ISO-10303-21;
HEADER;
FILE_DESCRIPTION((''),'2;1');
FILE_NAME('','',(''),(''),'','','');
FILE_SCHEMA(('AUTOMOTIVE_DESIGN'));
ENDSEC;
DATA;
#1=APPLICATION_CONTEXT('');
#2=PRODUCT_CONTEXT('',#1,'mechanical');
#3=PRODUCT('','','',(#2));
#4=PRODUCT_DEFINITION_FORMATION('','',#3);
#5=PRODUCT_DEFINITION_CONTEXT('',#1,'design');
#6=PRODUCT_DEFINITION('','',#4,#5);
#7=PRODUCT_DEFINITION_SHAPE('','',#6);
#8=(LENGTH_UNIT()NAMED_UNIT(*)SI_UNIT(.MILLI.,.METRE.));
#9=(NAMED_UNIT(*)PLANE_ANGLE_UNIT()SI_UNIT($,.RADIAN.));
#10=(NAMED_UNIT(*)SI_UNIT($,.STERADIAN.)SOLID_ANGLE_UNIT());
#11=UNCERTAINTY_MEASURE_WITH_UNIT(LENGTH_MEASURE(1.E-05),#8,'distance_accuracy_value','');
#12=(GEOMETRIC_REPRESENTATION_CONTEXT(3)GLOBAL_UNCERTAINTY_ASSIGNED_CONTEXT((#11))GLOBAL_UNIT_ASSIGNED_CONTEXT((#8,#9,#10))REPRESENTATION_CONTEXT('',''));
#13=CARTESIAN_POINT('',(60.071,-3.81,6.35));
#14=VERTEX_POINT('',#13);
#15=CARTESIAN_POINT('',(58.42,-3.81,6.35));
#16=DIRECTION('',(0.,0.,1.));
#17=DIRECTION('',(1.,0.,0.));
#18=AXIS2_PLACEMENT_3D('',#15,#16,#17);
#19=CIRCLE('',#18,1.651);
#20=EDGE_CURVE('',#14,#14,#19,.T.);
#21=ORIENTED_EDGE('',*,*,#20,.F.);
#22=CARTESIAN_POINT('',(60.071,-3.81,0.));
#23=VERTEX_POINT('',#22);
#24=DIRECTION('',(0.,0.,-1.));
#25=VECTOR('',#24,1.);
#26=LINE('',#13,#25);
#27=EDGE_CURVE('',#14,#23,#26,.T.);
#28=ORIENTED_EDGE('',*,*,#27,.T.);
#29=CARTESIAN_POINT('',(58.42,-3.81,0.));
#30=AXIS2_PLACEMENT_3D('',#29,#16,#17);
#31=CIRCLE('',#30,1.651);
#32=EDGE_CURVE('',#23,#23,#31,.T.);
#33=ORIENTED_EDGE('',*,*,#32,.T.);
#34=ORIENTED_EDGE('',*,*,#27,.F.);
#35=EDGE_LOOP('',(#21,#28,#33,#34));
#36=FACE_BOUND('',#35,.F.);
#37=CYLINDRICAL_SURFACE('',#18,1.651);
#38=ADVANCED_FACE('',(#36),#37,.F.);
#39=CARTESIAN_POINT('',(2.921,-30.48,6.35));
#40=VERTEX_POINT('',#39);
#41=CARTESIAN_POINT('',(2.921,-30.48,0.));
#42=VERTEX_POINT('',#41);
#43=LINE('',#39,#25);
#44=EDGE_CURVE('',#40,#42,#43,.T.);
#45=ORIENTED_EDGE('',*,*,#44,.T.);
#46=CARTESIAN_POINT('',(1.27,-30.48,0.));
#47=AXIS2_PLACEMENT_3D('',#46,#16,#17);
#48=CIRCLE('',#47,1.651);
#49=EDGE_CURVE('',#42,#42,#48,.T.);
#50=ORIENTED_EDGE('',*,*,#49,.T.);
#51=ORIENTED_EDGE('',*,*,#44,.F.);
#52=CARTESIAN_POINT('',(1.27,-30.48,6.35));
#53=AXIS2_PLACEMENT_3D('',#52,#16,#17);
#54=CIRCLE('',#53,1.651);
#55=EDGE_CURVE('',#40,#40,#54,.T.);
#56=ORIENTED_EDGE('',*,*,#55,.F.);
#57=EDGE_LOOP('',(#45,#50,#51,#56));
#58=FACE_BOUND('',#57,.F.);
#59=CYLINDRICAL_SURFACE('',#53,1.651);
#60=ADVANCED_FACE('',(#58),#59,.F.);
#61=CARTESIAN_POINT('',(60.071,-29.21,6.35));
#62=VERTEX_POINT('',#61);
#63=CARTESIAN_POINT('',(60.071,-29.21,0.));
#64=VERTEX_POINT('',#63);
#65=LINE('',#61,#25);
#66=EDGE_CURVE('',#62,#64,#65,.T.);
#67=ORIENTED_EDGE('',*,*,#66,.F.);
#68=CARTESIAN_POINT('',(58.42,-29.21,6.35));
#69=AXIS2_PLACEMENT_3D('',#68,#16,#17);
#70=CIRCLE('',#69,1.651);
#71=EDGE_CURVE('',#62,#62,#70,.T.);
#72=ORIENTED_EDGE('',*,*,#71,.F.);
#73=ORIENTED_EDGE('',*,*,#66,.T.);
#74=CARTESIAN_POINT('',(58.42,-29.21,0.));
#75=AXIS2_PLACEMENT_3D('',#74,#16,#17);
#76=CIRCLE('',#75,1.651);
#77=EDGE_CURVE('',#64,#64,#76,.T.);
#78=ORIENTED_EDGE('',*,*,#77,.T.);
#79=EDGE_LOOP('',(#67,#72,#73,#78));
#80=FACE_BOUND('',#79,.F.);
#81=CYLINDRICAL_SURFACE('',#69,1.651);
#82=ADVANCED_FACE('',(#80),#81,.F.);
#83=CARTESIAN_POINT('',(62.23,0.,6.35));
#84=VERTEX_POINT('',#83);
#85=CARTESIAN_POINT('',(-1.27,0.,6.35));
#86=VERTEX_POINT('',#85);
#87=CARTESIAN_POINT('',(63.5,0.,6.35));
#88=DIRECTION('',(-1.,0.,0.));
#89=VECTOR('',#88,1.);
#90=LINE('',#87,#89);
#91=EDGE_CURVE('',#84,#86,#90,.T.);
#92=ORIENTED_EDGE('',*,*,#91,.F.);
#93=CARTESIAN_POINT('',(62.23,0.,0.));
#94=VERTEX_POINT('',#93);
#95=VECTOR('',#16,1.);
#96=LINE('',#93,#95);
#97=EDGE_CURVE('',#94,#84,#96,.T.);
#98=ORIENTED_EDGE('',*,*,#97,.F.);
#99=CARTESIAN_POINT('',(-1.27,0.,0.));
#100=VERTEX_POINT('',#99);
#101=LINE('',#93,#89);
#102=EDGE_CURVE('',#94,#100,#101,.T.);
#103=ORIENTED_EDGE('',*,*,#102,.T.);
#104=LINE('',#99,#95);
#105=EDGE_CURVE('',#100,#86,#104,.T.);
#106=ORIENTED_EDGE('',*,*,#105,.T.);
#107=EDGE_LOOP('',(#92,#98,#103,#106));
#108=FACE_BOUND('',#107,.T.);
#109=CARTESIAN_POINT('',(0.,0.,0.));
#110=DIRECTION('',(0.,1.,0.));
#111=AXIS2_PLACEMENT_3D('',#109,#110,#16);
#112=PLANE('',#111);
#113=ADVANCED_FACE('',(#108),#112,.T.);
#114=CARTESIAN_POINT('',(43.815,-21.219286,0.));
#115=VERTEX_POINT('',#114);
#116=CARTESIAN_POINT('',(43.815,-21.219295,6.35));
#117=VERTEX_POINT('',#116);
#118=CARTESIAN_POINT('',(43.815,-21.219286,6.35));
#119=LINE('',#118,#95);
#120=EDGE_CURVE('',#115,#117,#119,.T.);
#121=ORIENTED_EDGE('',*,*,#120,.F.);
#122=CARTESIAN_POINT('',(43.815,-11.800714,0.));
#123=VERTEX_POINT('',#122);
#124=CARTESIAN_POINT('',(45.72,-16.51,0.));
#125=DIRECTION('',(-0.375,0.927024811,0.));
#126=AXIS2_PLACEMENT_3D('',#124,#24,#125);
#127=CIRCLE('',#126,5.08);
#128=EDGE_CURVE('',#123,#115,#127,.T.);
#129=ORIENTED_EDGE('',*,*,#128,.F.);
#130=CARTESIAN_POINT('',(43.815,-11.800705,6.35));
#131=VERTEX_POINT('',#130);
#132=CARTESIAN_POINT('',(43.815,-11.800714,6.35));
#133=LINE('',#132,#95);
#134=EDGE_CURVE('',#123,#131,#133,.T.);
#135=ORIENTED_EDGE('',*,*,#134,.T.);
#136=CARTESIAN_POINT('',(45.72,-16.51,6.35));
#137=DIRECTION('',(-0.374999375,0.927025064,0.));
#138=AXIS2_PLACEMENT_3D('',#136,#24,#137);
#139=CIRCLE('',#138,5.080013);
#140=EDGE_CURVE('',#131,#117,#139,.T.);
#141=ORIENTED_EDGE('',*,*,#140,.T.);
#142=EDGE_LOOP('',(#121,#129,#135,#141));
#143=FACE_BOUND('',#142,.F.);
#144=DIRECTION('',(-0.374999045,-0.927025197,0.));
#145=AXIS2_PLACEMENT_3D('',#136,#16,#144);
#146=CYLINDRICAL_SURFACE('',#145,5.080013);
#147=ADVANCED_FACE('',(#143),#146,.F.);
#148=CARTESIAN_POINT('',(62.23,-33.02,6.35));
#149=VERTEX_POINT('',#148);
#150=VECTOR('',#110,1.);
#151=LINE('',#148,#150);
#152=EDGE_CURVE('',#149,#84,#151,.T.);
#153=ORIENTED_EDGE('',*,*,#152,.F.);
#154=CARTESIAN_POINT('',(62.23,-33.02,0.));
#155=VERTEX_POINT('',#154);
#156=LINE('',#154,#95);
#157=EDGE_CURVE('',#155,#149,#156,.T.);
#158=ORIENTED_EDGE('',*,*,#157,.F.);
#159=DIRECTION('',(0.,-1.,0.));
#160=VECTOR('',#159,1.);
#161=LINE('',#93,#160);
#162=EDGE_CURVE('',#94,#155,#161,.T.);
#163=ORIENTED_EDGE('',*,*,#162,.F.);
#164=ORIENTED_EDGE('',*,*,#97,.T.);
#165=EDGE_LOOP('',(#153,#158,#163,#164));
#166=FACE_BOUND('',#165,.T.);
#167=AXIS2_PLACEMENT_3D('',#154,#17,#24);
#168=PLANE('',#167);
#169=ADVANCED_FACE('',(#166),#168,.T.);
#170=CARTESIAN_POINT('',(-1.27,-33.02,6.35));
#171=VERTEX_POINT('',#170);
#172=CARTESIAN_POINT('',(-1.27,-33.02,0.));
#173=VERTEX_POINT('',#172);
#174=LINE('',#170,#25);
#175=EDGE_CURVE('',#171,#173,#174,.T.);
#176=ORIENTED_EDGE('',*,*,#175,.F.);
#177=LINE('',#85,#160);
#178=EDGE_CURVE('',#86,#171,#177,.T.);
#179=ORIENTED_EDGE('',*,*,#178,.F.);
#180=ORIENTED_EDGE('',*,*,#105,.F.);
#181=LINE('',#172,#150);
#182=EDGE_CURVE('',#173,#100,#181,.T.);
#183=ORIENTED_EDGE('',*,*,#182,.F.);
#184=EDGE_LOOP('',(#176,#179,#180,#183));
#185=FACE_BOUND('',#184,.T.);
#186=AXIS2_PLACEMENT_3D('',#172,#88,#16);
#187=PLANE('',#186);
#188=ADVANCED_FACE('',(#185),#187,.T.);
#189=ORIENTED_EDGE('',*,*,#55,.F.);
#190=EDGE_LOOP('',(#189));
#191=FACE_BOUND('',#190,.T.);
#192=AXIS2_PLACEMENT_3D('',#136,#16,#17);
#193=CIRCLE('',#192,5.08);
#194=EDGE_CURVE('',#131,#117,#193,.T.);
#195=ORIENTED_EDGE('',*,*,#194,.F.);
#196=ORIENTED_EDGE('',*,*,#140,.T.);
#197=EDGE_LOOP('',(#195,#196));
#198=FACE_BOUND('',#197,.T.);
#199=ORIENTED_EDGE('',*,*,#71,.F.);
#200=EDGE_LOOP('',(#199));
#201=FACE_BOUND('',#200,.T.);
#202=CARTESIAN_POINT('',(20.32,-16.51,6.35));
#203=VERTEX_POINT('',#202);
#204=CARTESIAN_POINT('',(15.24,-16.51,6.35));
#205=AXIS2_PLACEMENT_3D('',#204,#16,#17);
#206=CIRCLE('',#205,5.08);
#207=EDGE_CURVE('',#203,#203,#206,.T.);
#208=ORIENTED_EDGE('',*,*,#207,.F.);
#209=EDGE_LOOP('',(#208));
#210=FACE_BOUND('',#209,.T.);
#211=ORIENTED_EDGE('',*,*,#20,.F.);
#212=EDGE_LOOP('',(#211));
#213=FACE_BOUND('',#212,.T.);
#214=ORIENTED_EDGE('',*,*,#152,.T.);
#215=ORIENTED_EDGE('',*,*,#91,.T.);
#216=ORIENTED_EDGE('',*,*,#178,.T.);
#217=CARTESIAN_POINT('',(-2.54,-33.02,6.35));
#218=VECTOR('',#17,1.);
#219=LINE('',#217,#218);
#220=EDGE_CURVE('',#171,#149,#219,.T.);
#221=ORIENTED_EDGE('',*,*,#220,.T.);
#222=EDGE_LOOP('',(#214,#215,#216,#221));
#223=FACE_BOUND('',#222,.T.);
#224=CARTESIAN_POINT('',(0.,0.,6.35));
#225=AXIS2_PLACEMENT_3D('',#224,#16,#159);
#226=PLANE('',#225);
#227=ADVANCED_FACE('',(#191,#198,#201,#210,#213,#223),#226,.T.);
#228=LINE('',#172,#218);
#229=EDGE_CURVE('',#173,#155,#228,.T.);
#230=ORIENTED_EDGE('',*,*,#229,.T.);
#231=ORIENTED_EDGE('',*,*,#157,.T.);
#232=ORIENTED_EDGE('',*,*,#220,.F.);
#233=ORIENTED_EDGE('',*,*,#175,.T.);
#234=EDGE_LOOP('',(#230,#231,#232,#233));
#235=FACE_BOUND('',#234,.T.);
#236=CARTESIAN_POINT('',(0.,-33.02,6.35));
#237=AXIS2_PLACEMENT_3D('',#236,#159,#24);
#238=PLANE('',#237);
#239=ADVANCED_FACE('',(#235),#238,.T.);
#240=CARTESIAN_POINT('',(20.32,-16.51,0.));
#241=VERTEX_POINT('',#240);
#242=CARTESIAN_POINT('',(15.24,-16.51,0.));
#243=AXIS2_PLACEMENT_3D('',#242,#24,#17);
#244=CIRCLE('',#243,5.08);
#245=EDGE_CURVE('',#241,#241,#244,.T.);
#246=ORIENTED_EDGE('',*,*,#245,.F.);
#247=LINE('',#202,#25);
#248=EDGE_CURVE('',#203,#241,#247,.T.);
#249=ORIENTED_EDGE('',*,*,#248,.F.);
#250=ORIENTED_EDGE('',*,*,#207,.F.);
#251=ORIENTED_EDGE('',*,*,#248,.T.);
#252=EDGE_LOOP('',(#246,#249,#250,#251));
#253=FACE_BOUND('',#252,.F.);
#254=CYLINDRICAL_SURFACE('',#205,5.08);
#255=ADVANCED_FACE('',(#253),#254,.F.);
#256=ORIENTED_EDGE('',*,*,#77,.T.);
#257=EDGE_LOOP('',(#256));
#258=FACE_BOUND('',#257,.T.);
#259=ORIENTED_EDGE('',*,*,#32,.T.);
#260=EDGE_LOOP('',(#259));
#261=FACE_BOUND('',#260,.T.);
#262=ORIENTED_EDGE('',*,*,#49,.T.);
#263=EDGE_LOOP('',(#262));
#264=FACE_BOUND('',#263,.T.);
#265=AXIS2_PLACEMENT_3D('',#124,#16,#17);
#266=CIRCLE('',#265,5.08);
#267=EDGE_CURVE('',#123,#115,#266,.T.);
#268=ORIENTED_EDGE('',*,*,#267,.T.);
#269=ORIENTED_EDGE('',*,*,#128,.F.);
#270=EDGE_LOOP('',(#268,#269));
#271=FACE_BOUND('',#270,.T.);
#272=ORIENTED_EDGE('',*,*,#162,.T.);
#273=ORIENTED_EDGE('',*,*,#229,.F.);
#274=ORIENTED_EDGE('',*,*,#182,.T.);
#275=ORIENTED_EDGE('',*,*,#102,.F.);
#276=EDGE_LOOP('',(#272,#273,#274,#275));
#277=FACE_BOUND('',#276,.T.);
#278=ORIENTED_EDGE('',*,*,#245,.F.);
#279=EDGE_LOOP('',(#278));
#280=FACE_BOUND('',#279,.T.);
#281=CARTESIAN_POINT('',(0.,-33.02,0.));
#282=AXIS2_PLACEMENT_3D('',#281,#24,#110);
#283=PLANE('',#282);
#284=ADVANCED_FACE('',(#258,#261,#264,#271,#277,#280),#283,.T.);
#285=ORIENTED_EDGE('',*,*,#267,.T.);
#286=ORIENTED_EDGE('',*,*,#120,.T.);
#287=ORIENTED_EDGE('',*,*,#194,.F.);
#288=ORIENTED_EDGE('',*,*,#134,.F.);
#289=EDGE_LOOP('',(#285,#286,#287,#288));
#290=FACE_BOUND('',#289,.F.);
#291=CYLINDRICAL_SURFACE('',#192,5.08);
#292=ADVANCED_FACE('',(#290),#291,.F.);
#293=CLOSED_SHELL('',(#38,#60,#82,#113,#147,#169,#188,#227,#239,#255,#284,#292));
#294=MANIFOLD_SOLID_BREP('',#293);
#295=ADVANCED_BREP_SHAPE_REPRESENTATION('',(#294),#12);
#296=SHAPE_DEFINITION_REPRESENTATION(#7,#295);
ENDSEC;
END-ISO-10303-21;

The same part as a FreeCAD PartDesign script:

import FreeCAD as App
import Part
import Sketcher

V = App.Vector
Q = App.Units.Quantity


def add_polygon(sketch, points):
    """Adds a closed chain of lines whose ends are joined by coincident constraints."""
    first, n = sketch.GeometryCount, len(points)
    for a, b in zip(points, points[1:] + points[:1]):
        sketch.addGeometry(Part.LineSegment(App.Vector(*a, 0), App.Vector(*b, 0)), False)
    for i in range(n):
        sketch.addConstraint(Sketcher.Constraint("Coincident", first + i, 2, first + (i + 1) % n, 1))

doc = App.newDocument("Part")
params = doc.addObject("Spreadsheet::Sheet", "Params")
for row, (alias, value) in enumerate([
    ("sketch1_width", "2.3 in"),
    ("sketch1_height", "1.3 in"),
    ("pad1_length", "0.25 in"),
    ("sketch2_width", "1.3 in"),
    ("sketch2_height", "0.25 in"),
    ("pad2_length", "0.2 in"),
    ("sketch3_diameter", "0.4 in"),
    ("pocket1_length", "0.3 in"),
    ("sketch4_width", "1.3 in"),
    ("sketch4_height", "0.25 in"),
    ("pad3_length", "0.1 in"),
    ("sketch5_width", "1.3 in"),
    ("sketch5_height", "0.25 in"),
    ("pocket2_length", "0.05 in"),
    ("sketch6_width", "1.3 in"),
    ("sketch6_height", "0.25 in"),
    ("pocket3_length", "0.05 in"),
    ("sketch7_diameter", "0.13 in"),
    ("pocket4_length", "0.25 in"),
    ("sketch8_diameter", "0.13 in"),
    ("pocket5_length", "0.25 in"),
    ("sketch9_diameter", "0.4 in"),
    ("pad4_length", "1 in"),
    ("sketch10_diameter", "0.4 in"),
    ("pocket6_length", "1 in"),
    ("pocket7_length", "2 in"),
], start=1):
    params.set(f"A{row}", alias)
    params.set(f"B{row}", "=" + value)
    params.setAlias(f"B{row}", alias)

body = doc.addObject("PartDesign::Body", "Body")

sketch1 = body.newObject("Sketcher::SketchObject", "Sketch")
sketch1.AttachmentSupport = (doc.getObject("XY_Plane"), [""])
sketch1.MapMode = "FlatFace"
add_polygon(sketch1, [(58, 0), (0, 0), (0, -33), (58, -33)])
sketch1.addConstraint([
    Sketcher.Constraint("Horizontal", 0),
    Sketcher.Constraint("Vertical", 1),
    Sketcher.Constraint("Horizontal", 2),
    Sketcher.Constraint("Vertical", 3),
    Sketcher.Constraint("Coincident", 0, 2, -1, 1),
    Sketcher.Constraint("DistanceX", 0, 2, 0, 1, Q("2.3 in")),
    Sketcher.Constraint("DistanceY", 1, 2, 1, 1, Q("1.3 in")),
])
sketch1.setExpression("Constraints[9]", "Params.sketch1_width")
sketch1.setExpression("Constraints[10]", "Params.sketch1_height")
pad1 = body.newObject("PartDesign::Pad", "Pad")
pad1.Profile = sketch1
pad1.setExpression("Length", "Params.pad1_length")

sketch2 = body.newObject("Sketcher::SketchObject", "Sketch001")
sketch2.AttachmentSupport = (doc.getObject("YZ_Plane"), [""])
sketch2.MapMode = "FlatFace"
sketch2.AttachmentOffset = App.Placement(V(0, 0, 2.3 * 25.4), App.Rotation())
add_polygon(sketch2, [(0, 0), (0, 6), (-33, 6), (-33, 0)])
sketch2.addConstraint([
    Sketcher.Constraint("Vertical", 0),
    Sketcher.Constraint("Horizontal", 1),
    Sketcher.Constraint("Vertical", 2),
    Sketcher.Constraint("Horizontal", 3),
    Sketcher.Constraint("Coincident", 3, 2, -1, 1),
    Sketcher.Constraint("DistanceX", 1, 2, 1, 1, Q("1.3 in")),
    Sketcher.Constraint("DistanceY", 0, 1, 0, 2, Q("0.25 in")),
])
sketch2.setExpression("Constraints[9]", "Params.sketch2_width")
sketch2.setExpression("Constraints[10]", "Params.sketch2_height")
pad2 = body.newObject("PartDesign::Pad", "Pad001")
pad2.Profile = sketch2
pad2.setExpression("Length", "Params.pad2_length")

sketch3 = body.newObject("Sketcher::SketchObject", "Sketch002")
sketch3.AttachmentSupport = (doc.getObject("XY_Plane"), [""])
sketch3.MapMode = "FlatFace"
sketch3.AttachmentOffset = App.Placement(V(0, 0, 0.25 * 25.4), App.Rotation())
sketch3.addGeometry([
    Part.Circle(V(15, -17, 0), V(0, 0, 1), 5),
    Part.Circle(V(42, -17, 0), V(0, 0, 1), 5),
], False)
sketch3.addConstraint([
    Sketcher.Constraint("Equal", 0, 1),
    Sketcher.Constraint("Horizontal", 0, 3, 1, 3),
    Sketcher.Constraint("Diameter", 0, Q("0.4 in")),
    Sketcher.Constraint("DistanceX", -1, 1, 0, 3, Q("0.6 in")),
    Sketcher.Constraint("DistanceY", 0, 3, -1, 1, Q("0.65 in")),
    Sketcher.Constraint("DistanceX", 0, 3, 1, 3, Q("1.05 in")),
])
sketch3.setExpression("Constraints[2]", "Params.sketch3_diameter")
pocket1 = body.newObject("PartDesign::Pocket", "Pocket")
pocket1.Profile = sketch3
pocket1.setExpression("Length", "Params.pocket1_length")

sketch4 = body.newObject("Sketcher::SketchObject", "Sketch003")
sketch4.AttachmentSupport = (doc.getObject("YZ_Plane"), [""])
sketch4.MapMode = "FlatFace"
add_polygon(sketch4, [(-33, 6), (0, 6), (0, 0), (-33, 0)])
sketch4.addConstraint([
    Sketcher.Constraint("Horizontal", 0),
    Sketcher.Constraint("Vertical", 1),
    Sketcher.Constraint("Horizontal", 2),
    Sketcher.Constraint("Vertical", 3),
    Sketcher.Constraint("Coincident", 1, 2, -1, 1),
    Sketcher.Constraint("DistanceX", 0, 1, 0, 2, Q("1.3 in")),
    Sketcher.Constraint("DistanceY", 1, 2, 1, 1, Q("0.25 in")),
])
sketch4.setExpression("Constraints[9]", "Params.sketch4_width")
sketch4.setExpression("Constraints[10]", "Params.sketch4_height")
pad3 = body.newObject("PartDesign::Pad", "Pad002")
pad3.Profile = sketch4
pad3.setExpression("Length", "Params.pad3_length")
pad3.Reversed = True

sketch5 = body.newObject("Sketcher::SketchObject", "Sketch004")
sketch5.AttachmentSupport = (doc.getObject("YZ_Plane"), [""])
sketch5.MapMode = "FlatFace"
sketch5.AttachmentOffset = App.Placement(V(0, 0, -0.1 * 25.4), App.Rotation())
add_polygon(sketch5, [(-33, 0), (-33, 6), (0, 6), (0, 0)])
sketch5.addConstraint([
    Sketcher.Constraint("Vertical", 0),
    Sketcher.Constraint("Horizontal", 1),
    Sketcher.Constraint("Vertical", 2),
    Sketcher.Constraint("Horizontal", 3),
    Sketcher.Constraint("Coincident", 2, 2, -1, 1),
    Sketcher.Constraint("DistanceX", 1, 1, 1, 2, Q("1.3 in")),
    Sketcher.Constraint("DistanceY", 0, 1, 0, 2, Q("0.25 in")),
])
sketch5.setExpression("Constraints[9]", "Params.sketch5_width")
sketch5.setExpression("Constraints[10]", "Params.sketch5_height")
pocket2 = body.newObject("PartDesign::Pocket", "Pocket001")
pocket2.Profile = sketch5
pocket2.setExpression("Length", "Params.pocket2_length")
pocket2.Reversed = True

sketch6 = body.newObject("Sketcher::SketchObject", "Sketch005")
sketch6.AttachmentSupport = (doc.getObject("YZ_Plane"), [""])
sketch6.MapMode = "FlatFace"
sketch6.AttachmentOffset = App.Placement(V(0, 0, 2.5 * 25.4), App.Rotation())
add_polygon(sketch6, [(-33, 0), (0, 0), (0, 6), (-33, 6)])
sketch6.addConstraint([
    Sketcher.Constraint("Horizontal", 0),
    Sketcher.Constraint("Vertical", 1),
    Sketcher.Constraint("Horizontal", 2),
    Sketcher.Constraint("Vertical", 3),
    Sketcher.Constraint("Coincident", 0, 2, -1, 1),
    Sketcher.Constraint("DistanceX", 0, 1, 0, 2, Q("1.3 in")),
    Sketcher.Constraint("DistanceY", 1, 1, 1, 2, Q("0.25 in")),
])
sketch6.setExpression("Constraints[9]", "Params.sketch6_width")
sketch6.setExpression("Constraints[10]", "Params.sketch6_height")
pocket3 = body.newObject("PartDesign::Pocket", "Pocket002")
pocket3.Profile = sketch6
pocket3.setExpression("Length", "Params.pocket3_length")

sketch7 = body.newObject("Sketcher::SketchObject", "Sketch006")
sketch7.AttachmentSupport = (doc.getObject("XY_Plane"), [""])
sketch7.MapMode = "FlatFace"
sketch7.AttachmentOffset = App.Placement(V(0, 0, 0.25 * 25.4), App.Rotation())
sketch7.addGeometry([
    Part.Circle(V(58.4, -3.8, 0), V(0, 0, 1), 1.7),
    Part.Circle(V(58.4, -29.2, 0), V(0, 0, 1), 1.7),
], False)
sketch7.addConstraint([
    Sketcher.Constraint("Equal", 0, 1),
    Sketcher.Constraint("Vertical", 0, 3, 1, 3),
    Sketcher.Constraint("Diameter", 0, Q("0.13 in")),
    Sketcher.Constraint("DistanceY", 0, 3, -1, 1, Q("0.15 in")),
    Sketcher.Constraint("DistanceY", 1, 3, 0, 3, Q("1 in")),
    Sketcher.Constraint("DistanceX", -1, 1, 0, 3, Q("2.3 in")),
])
sketch7.setExpression("Constraints[2]", "Params.sketch7_diameter")
pocket4 = body.newObject("PartDesign::Pocket", "Pocket003")
pocket4.Profile = sketch7
pocket4.setExpression("Length", "Params.pocket4_length")

sketch8 = body.newObject("Sketcher::SketchObject", "Sketch007")
sketch8.AttachmentSupport = (doc.getObject("XY_Plane"), [""])
sketch8.MapMode = "FlatFace"
sketch8.AttachmentOffset = App.Placement(V(0, 0, 0.25 * 25.4), App.Rotation())
sketch8.addGeometry(Part.Circle(V(1.3, -30.5, 0), V(0, 0, 1), 1.7), False)
sketch8.addConstraint([
    Sketcher.Constraint("Diameter", 0, Q("0.13 in")),
    Sketcher.Constraint("DistanceY", 0, 3, -1, 1, Q("1.2 in")),
    Sketcher.Constraint("DistanceX", -1, 1, 0, 3, Q("0.05 in")),
])
sketch8.setExpression("Constraints[0]", "Params.sketch8_diameter")
pocket5 = body.newObject("PartDesign::Pocket", "Pocket004")
pocket5.Profile = sketch8
pocket5.setExpression("Length", "Params.pocket5_length")

sketch9 = body.newObject("Sketcher::SketchObject", "Sketch008")
sketch9.AttachmentSupport = (doc.getObject("XY_Plane"), [""])
sketch9.MapMode = "FlatFace"
sketch9.AttachmentOffset = App.Placement(V(0, 0, 0.25 * 25.4), App.Rotation())
sketch9.addGeometry([
    Part.Circle(V(46, -17, 0), V(0, 0, 1), 10),
    Part.Circle(V(46, -17, 0), V(0, 0, 1), 5),
], False)
sketch9.addConstraint([
    Sketcher.Constraint("Coincident", 1, 3, 0, 3),
    Sketcher.Constraint("Diameter", 1, Q("0.4 in")),
    Sketcher.Constraint("DistanceY", 0, 3, -1, 1, Q("0.65 in")),
    Sketcher.Constraint("DistanceX", -1, 1, 0, 3, Q("1.8 in")),
    Sketcher.Constraint("Diameter", 0, Q("19.1256 mm")),
])
sketch9.setExpression("Constraints[1]", "Params.sketch9_diameter")
pad4 = body.newObject("PartDesign::Pad", "Pad003")
pad4.Profile = sketch9
pad4.setExpression("Length", "Params.pad4_length")
pad4.Reversed = True

sketch10 = body.newObject("Sketcher::SketchObject", "Sketch009")
sketch10.AttachmentSupport = (doc.getObject("XY_Plane"), [""])
sketch10.MapMode = "FlatFace"
sketch10.AttachmentOffset = App.Placement(V(0, 0, 0.25 * 25.4), App.Rotation())
sketch10.addGeometry(Part.Circle(V(46, -17, 0), V(0, 0, 1), 5), False)
sketch10.addConstraint([
    Sketcher.Constraint("Diameter", 0, Q("0.4 in")),
    Sketcher.Constraint("DistanceX", -1, 1, 0, 3, Q("1.8 in")),
    Sketcher.Constraint("DistanceY", 0, 3, -1, 1, Q("0.65 in")),
])
sketch10.setExpression("Constraints[0]", "Params.sketch10_diameter")
pocket6 = body.newObject("PartDesign::Pocket", "Pocket005")
pocket6.Profile = sketch10
pocket6.setExpression("Length", "Params.pocket6_length")

sketch11 = body.newObject("Sketcher::SketchObject", "Sketch010")
sketch11.AttachmentSupport = (doc.getObject("YZ_Plane"), [""])
sketch11.MapMode = "FlatFace"
sketch11.AttachmentOffset = App.Placement(V(0, 0, 2.45 * 25.4), App.Rotation())
add_polygon(sketch11, [(0, -25), (0, 0), (-33, 0), (-33, -25)])
sketch11.addConstraint([
    Sketcher.Constraint("Vertical", 0),
    Sketcher.Constraint("Horizontal", 1),
    Sketcher.Constraint("Vertical", 2),
    Sketcher.Constraint("Horizontal", 3),
    Sketcher.Constraint("Coincident", 0, 2, -1, 1),
    Sketcher.Constraint("DistanceX", 1, 2, 1, 1, Q("1.3042 in")),
    Sketcher.Constraint("DistanceY", 0, 1, 0, 2, Q("24.956 mm")),
])
pocket7 = body.newObject("PartDesign::Pocket", "Pocket006")
pocket7.Profile = sketch11
pocket7.setExpression("Length", "Params.pocket7_length")

doc.recompute()
